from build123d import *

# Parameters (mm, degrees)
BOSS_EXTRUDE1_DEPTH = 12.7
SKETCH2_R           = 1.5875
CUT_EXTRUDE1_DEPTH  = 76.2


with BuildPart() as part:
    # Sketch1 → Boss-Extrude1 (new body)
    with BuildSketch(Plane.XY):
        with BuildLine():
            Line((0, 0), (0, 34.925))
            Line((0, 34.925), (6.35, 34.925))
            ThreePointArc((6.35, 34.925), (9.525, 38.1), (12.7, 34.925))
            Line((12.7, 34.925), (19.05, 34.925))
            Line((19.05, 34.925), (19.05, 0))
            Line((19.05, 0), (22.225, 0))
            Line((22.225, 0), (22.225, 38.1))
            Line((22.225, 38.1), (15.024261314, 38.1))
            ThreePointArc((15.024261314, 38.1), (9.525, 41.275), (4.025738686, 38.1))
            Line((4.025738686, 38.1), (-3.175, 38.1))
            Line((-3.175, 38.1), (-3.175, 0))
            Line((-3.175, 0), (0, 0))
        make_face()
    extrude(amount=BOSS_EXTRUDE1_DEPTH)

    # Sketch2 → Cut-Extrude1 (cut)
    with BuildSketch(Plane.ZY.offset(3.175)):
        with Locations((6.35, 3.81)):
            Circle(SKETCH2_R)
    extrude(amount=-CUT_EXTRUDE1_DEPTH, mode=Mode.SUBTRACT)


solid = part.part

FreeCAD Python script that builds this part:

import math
import FreeCAD as App
import Part
import Sketcher

V = App.Vector
Q = App.Units.Quantity

doc = App.newDocument("Part")
body = doc.addObject("PartDesign::Body", "Body")

sketch1 = body.newObject("Sketcher::SketchObject", "Sketch")
sketch1.AttachmentSupport = (doc.getObject("XY_Plane"), [""])
sketch1.MapMode = "FlatFace"
sketch1.addGeometry(Part.LineSegment(V(0, 0, 0), V(0, 34.925, 0)), False)
sketch1.addGeometry(Part.LineSegment(V(0, 34.925, 0), V(6.35, 34.925, 0)), False)
sketch1.addGeometry(Part.ArcOfCircle(Part.Circle(V(9.525, 34.925, 0), V(0, 0, 1), 3.175), math.radians(0), math.radians(180)), False)
sketch1.addGeometry(Part.LineSegment(V(12.7, 34.925, 0), V(19.05, 34.925, 0)), False)
sketch1.addGeometry(Part.LineSegment(V(19.05, 34.925, 0), V(19.05, 0, 0)), False)
sketch1.addGeometry(Part.LineSegment(V(19.05, 0, 0), V(22.225, 0, 0)), False)
sketch1.addGeometry(Part.LineSegment(V(22.225, 0, 0), V(22.225, 38.1, 0)), False)
sketch1.addGeometry(Part.LineSegment(V(22.225, 38.1, 0), V(15.024261, 38.1, 0)), False)
sketch1.addGeometry(Part.ArcOfCircle(Part.Circle(V(9.525, 34.925, 0), V(0, 0, 1), 6.35), math.radians(30), math.radians(150)), False)
sketch1.addGeometry(Part.LineSegment(V(4.025739, 38.1, 0), V(-3.175, 38.1, 0)), False)
sketch1.addGeometry(Part.LineSegment(V(-3.175, 38.1, 0), V(-3.175, 0, 0)), False)
sketch1.addGeometry(Part.LineSegment(V(-3.175, 0, 0), V(0, 0, 0)), False)
sketch1.addConstraint(Sketcher.Constraint("Coincident", 0, 2, 1, 1))
sketch1.addConstraint(Sketcher.Constraint("Coincident", 1, 2, 2, 2))
sketch1.addConstraint(Sketcher.Constraint("Coincident", 2, 1, 3, 1))
sketch1.addConstraint(Sketcher.Constraint("Coincident", 3, 2, 4, 1))
sketch1.addConstraint(Sketcher.Constraint("Coincident", 4, 2, 5, 1))
sketch1.addConstraint(Sketcher.Constraint("Coincident", 5, 2, 6, 1))
sketch1.addConstraint(Sketcher.Constraint("Coincident", 6, 2, 7, 1))
sketch1.addConstraint(Sketcher.Constraint("Coincident", 7, 2, 8, 1))
sketch1.addConstraint(Sketcher.Constraint("Coincident", 8, 2, 9, 1))
sketch1.addConstraint(Sketcher.Constraint("Coincident", 9, 2, 10, 1))
sketch1.addConstraint(Sketcher.Constraint("Coincident", 10, 2, 11, 1))
sketch1.addConstraint(Sketcher.Constraint("Coincident", 11, 2, 0, 1))
sketch1.addConstraint(Sketcher.Constraint("Vertical", 0))
sketch1.addConstraint(Sketcher.Constraint("Horizontal", 1))
sketch1.addConstraint(Sketcher.Constraint("Horizontal", 3))
sketch1.addConstraint(Sketcher.Constraint("Vertical", 4))
sketch1.addConstraint(Sketcher.Constraint("Horizontal", 5))
sketch1.addConstraint(Sketcher.Constraint("Vertical", 6))
sketch1.addConstraint(Sketcher.Constraint("Horizontal", 7))
sketch1.addConstraint(Sketcher.Constraint("Horizontal", 9))
sketch1.addConstraint(Sketcher.Constraint("Vertical", 10))
sketch1.addConstraint(Sketcher.Constraint("Horizontal", 11))
sketch1.addConstraint(Sketcher.Constraint("Coincident", 11, 2, -1, 1))
sketch1.addConstraint(Sketcher.Constraint("Coincident", 8, 3, 2, 3))
sketch1.addConstraint(Sketcher.Constraint("PointOnObject", 4, 2, -1))
sketch1.addConstraint(Sketcher.Constraint("Horizontal", 8, 3, 0, 2))
sketch1.addConstraint(Sketcher.Constraint("Horizontal", 1, 2, 2, 1))
sketch1.addConstraint(Sketcher.Constraint("Horizontal", 7, 2, 8, 2))
sketch1.addConstraint(Sketcher.Constraint("Equal", 1, 3))
sketch1.addConstraint(Sketcher.Constraint("Equal", 7, 9))
sketch1.addConstraint(Sketcher.Constraint("Radius", 8, Q("0.25 in")))
sketch1.addConstraint(Sketcher.Constraint("DistanceY", 6, 1, 6, 2, Q("1.5 in")))
sketch1.addConstraint(Sketcher.Constraint("Radius", 2, Q("0.125 in")))
sketch1.addConstraint(Sketcher.Constraint("DistanceX", 10, 2, 5, 2, Q("1 in")))
sketch1.addConstraint(Sketcher.Constraint("DistanceX", 1, 1, 1, 2, Q("0.25 in")))
sketch1.addConstraint(Sketcher.Constraint("DistanceY", 0, 1, 0, 2, Q("1.375 in")))
pad1 = body.newObject("PartDesign::Pad", "Pad")
pad1.Profile = sketch1
pad1.Length = Q("0.5 in")

sketch2 = body.newObject("Sketcher::SketchObject", "Sketch001")
sketch2.AttachmentSupport = (doc.getObject("YZ_Plane"), [""])
sketch2.MapMode = "FlatFace"
sketch2.AttachmentOffset = App.Placement(V(0, 0, -0.125 * 25.4), App.Rotation())
sketch2.addGeometry(Part.Circle(V(3.81, 6.35, 0), V(0, 0, 1), 1.5875), False)
sketch2.addConstraint(Sketcher.Constraint("Diameter", 0, Q("0.125 in")))
sketch2.addConstraint(Sketcher.Constraint("DistanceX", -1, 1, 0, 3, Q("0.15 in")))
sketch2.addConstraint(Sketcher.Constraint("DistanceY", -1, 1, 0, 3, Q("0.25 in")))
pocket1 = body.newObject("PartDesign::Pocket", "Pocket")
pocket1.Profile = sketch2
pocket1.Length = Q("3 in")
pocket1.Reversed = True

doc.recompute()
